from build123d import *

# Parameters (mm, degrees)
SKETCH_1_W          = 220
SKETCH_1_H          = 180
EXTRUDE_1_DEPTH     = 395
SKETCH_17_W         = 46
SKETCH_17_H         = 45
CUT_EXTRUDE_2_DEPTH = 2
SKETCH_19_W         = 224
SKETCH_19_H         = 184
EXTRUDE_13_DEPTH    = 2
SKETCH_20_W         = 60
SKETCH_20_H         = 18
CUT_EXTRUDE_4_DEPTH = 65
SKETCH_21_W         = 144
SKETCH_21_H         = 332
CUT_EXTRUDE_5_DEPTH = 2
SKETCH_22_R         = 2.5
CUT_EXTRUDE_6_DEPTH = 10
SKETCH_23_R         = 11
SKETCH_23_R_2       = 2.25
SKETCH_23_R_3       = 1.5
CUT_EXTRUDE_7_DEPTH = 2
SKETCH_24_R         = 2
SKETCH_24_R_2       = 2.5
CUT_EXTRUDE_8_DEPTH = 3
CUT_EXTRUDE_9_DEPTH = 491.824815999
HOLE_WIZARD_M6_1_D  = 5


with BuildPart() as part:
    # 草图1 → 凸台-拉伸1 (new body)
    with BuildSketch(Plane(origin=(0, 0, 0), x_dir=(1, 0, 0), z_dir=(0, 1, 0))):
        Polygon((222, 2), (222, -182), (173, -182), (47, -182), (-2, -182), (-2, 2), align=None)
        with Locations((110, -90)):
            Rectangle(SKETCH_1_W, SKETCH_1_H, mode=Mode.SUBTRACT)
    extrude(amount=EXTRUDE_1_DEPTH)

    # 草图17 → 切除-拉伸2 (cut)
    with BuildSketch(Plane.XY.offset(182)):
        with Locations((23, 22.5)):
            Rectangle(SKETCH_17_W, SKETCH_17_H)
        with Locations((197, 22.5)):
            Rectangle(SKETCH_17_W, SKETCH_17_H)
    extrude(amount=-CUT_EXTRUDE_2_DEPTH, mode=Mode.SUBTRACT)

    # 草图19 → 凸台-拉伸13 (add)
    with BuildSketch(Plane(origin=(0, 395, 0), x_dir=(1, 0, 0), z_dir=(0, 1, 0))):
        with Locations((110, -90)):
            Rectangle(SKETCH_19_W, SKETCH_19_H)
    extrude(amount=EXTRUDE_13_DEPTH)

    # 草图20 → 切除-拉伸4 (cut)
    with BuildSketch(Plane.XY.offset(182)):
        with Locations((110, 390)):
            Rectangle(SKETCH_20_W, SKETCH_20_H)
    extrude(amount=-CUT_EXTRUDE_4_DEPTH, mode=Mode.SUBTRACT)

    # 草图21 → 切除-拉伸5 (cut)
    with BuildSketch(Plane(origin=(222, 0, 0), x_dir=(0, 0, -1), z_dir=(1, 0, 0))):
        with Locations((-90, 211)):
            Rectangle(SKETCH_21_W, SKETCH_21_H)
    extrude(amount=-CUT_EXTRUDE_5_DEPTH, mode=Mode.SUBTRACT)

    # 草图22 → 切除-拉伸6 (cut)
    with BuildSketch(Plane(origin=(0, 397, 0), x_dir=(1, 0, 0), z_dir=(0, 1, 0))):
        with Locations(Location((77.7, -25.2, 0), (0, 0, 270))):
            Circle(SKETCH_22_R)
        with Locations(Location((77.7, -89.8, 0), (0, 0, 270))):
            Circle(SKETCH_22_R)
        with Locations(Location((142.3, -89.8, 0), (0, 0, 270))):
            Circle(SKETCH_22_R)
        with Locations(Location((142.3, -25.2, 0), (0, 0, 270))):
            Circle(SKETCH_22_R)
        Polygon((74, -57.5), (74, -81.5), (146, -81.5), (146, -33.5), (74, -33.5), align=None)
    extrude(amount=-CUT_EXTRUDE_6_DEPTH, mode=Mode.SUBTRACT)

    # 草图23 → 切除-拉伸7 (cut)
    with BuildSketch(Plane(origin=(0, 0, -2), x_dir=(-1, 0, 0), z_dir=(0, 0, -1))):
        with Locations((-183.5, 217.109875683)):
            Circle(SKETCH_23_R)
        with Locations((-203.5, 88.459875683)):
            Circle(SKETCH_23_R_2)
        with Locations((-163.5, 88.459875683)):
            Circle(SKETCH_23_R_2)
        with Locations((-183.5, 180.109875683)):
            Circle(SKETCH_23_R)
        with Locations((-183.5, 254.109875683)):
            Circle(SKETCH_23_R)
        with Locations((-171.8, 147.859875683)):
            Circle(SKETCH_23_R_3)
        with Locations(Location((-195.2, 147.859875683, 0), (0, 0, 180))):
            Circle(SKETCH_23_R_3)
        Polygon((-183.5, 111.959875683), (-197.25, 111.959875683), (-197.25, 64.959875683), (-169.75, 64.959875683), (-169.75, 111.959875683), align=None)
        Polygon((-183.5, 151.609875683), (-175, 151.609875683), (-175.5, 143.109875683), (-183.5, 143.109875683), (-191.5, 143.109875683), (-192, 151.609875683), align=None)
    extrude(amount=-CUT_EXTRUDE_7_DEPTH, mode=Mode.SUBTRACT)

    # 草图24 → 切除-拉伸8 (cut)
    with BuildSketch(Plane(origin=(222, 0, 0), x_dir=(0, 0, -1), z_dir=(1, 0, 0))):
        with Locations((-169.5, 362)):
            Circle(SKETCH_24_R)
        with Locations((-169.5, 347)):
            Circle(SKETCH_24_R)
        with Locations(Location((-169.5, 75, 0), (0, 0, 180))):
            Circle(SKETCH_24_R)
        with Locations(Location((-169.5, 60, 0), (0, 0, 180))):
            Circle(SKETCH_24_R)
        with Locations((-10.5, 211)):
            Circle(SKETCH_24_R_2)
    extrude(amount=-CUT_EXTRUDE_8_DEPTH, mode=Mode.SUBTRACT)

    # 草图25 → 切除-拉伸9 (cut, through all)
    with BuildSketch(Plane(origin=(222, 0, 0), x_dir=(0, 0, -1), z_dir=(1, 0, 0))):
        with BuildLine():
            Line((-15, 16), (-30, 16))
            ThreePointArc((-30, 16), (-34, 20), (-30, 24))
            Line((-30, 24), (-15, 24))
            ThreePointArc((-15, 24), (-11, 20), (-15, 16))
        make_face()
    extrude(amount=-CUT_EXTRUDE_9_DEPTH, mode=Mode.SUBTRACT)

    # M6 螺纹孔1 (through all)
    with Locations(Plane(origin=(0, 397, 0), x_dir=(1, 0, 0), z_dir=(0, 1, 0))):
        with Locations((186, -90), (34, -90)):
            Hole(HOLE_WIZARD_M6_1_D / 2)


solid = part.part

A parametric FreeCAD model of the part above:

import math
import FreeCAD as App
import Part
import Sketcher
Q = App.Units.Quantity


def add_polygon(sketch, points):
    """Adds a closed chain of lines whose ends are joined by coincident constraints."""
    first, n = sketch.GeometryCount, len(points)
    for a, b in zip(points, points[1:] + points[:1]):
        sketch.addGeometry(Part.LineSegment(App.Vector(*a, 0), App.Vector(*b, 0)), False)
    for i in range(n):
        sketch.addConstraint(Sketcher.Constraint("Coincident", first + i, 2, first + (i + 1) % n, 1))

doc = App.newDocument("Part")
params = doc.addObject("Spreadsheet::Sheet", "Params")
for row, (alias, value) in enumerate([
    ("sketch1_width", "224 mm"),
    ("sketch1_width2", "220 mm"),
    ("sketch1_height", "184 mm"),
    ("sketch1_height2", "180 mm"),
    ("pad1_length", "395 mm"),
    ("sketch2_width", "46 mm"),
    ("sketch2_height", "45 mm"),
    ("pocket1_length", "2 mm"),
    ("sketch3_width", "224 mm"),
    ("sketch3_height", "184 mm"),
    ("pad2_length", "2 mm"),
    ("sketch4_width", "60 mm"),
    ("sketch4_height", "18 mm"),
    ("pocket2_length", "65 mm"),
    ("sketch5_width", "332 mm"),
    ("sketch5_height", "144 mm"),
    ("pocket3_length", "2 mm"),
    ("sketch6_diameter", "5 mm"),
    ("sketch6_width", "72 mm"),
    ("sketch6_height", "48 mm"),
    ("pocket4_length", "10 mm"),
    ("sketch7_diameter", "22 mm"),
    ("sketch7_diameter2", "3 mm"),
    ("sketch7_diameter3", "4.5 mm"),
    ("sketch7_width", "17 mm"),
    ("sketch7_width2", "16 mm"),
    ("pocket5_length", "2 mm"),
    ("sketch8_diameter", "4 mm"),
    ("sketch8_diameter2", "5 mm"),
    ("pocket6_length", "3 mm"),
    ("sketch9_radius", "4 mm"),
    ("sketch9_height", "15 mm"),
    ("sketch10_diameter", "5 mm"),
    ("hole_diameter", "5 mm"),
], start=1):
    params.set(f"A{row}", alias)
    params.set(f"B{row}", "=" + value)
    params.setAlias(f"B{row}", alias)

body = doc.addObject("PartDesign::Body", "Body")

# Sketch on XZ plane
sketch1 = doc.addObject("Sketcher::SketchObject", "Sketch")
body.addObject(sketch1)
sketch1.AttachmentSupport = (doc.XZ_Plane, [""])
sketch1.MapMode = "FlatFace"
add_polygon(sketch1, [(222, 182), (222, -2), (-2, -2), (-2, 182)])  # lines 0-3
add_polygon(sketch1, [(0, 180), (0, 0), (220, 0), (220, 180)])  # lines 4-7
sketch1.addConstraint([
    Sketcher.Constraint("Vertical", 0),
    Sketcher.Constraint("Horizontal", 1),
    Sketcher.Constraint("Vertical", 2),
    Sketcher.Constraint("Horizontal", 3),
    Sketcher.Constraint("Vertical", 4),
    Sketcher.Constraint("Horizontal", 5),
    Sketcher.Constraint("Vertical", 6),
    Sketcher.Constraint("Horizontal", 7),
    Sketcher.Constraint("Coincident", 4, 2, -1, 1),
    Sketcher.Constraint("DistanceX", 1, 2, 1, 1, Q("224 mm")),
    Sketcher.Constraint("DistanceX", 5, 1, 5, 2, Q("220 mm")),
    Sketcher.Constraint("DistanceY", 0, 2, 0, 1, Q("184 mm")),
    Sketcher.Constraint("DistanceY", 4, 2, 4, 1, Q("180 mm")),
    Sketcher.Constraint("DistanceX", -1, 1, 0, 2, Q("222 mm")),
    Sketcher.Constraint("DistanceY", 0, 2, -1, 1, Q("2 mm")),
])
sketch1.setExpression("Constraints[17]", "Params.sketch1_width")
sketch1.setExpression("Constraints[18]", "Params.sketch1_width2")
sketch1.setExpression("Constraints[19]", "Params.sketch1_height")
sketch1.setExpression("Constraints[20]", "Params.sketch1_height2")
pad1 = doc.addObject("PartDesign::Pad", "Pad")
body.addObject(pad1)
pad1.Profile = sketch1
pad1.setExpression("Length", "Params.pad1_length")
pad1.Reversed = True

# Sketch on XY plane
sketch2 = doc.addObject("Sketcher::SketchObject", "Sketch001")
body.addObject(sketch2)
sketch2.AttachmentSupport = (doc.XY_Plane, [""])
sketch2.MapMode = "FlatFace"
sketch2.AttachmentOffset = App.Placement(App.Vector(0, 0, 182), App.Rotation())
add_polygon(sketch2, [(0, 45), (0, 0), (46, 0), (46, 45)])  # lines 0-3
add_polygon(sketch2, [(174, 45), (174, 0), (220, 0), (220, 45)])  # lines 4-7
sketch2.addConstraint([
    Sketcher.Constraint("Vertical", 0),
    Sketcher.Constraint("Horizontal", 1),
    Sketcher.Constraint("Vertical", 2),
    Sketcher.Constraint("Horizontal", 3),
    Sketcher.Constraint("Vertical", 4),
    Sketcher.Constraint("Horizontal", 5),
    Sketcher.Constraint("Vertical", 6),
    Sketcher.Constraint("Horizontal", 7),
    Sketcher.Constraint("Coincident", 0, 2, -1, 1),
    Sketcher.Constraint("PointOnObject", 4, 2, -1),
    Sketcher.Constraint("Horizontal", 3, 2, 6, 2),
    Sketcher.Constraint("Equal", 3, 5),
    Sketcher.Constraint("DistanceX", 1, 1, 1, 2, Q("46 mm")),
    Sketcher.Constraint("DistanceY", 0, 2, 0, 1, Q("45 mm")),
    Sketcher.Constraint("DistanceX", -1, 1, 4, 2, Q("174 mm")),
])
sketch2.setExpression("Constraints[20]", "Params.sketch2_width")
sketch2.setExpression("Constraints[21]", "Params.sketch2_height")
pocket1 = doc.addObject("PartDesign::Pocket", "Pocket")
body.addObject(pocket1)
pocket1.Profile = sketch2
pocket1.setExpression("Length", "Params.pocket1_length")

# Sketch on XZ plane
sketch3 = doc.addObject("Sketcher::SketchObject", "Sketch002")
body.addObject(sketch3)
sketch3.AttachmentSupport = (doc.XZ_Plane, [""])
sketch3.MapMode = "FlatFace"
sketch3.AttachmentOffset = App.Placement(App.Vector(0, 0, -395), App.Rotation())
add_polygon(sketch3, [(-2, -2), (-2, 182), (222, 182), (222, -2)])  # lines 0-3
sketch3.addConstraint([
    Sketcher.Constraint("Vertical", 0),
    Sketcher.Constraint("Horizontal", 1),
    Sketcher.Constraint("Vertical", 2),
    Sketcher.Constraint("Horizontal", 3),
    Sketcher.Constraint("DistanceX", 1, 1, 1, 2, Q("224 mm")),
    Sketcher.Constraint("DistanceY", 0, 1, 0, 2, Q("184 mm")),
    Sketcher.Constraint("DistanceX", 0, 2, -1, 1, Q("2 mm")),
    Sketcher.Constraint("DistanceY", -1, 1, 0, 2, Q("182 mm")),
])
sketch3.setExpression("Constraints[8]", "Params.sketch3_width")
sketch3.setExpression("Constraints[9]", "Params.sketch3_height")
pad2 = doc.addObject("PartDesign::Pad", "Pad001")
body.addObject(pad2)
pad2.Profile = sketch3
pad2.setExpression("Length", "Params.pad2_length")
pad2.Reversed = True

# Sketch on XY plane
sketch4 = doc.addObject("Sketcher::SketchObject", "Sketch003")
body.addObject(sketch4)
sketch4.AttachmentSupport = (doc.XY_Plane, [""])
sketch4.MapMode = "FlatFace"
sketch4.AttachmentOffset = App.Placement(App.Vector(0, 0, 182), App.Rotation())
add_polygon(sketch4, [(80, 399), (80, 381), (140, 381), (140, 399)])  # lines 0-3
sketch4.addConstraint([
    Sketcher.Constraint("Vertical", 0),
    Sketcher.Constraint("Horizontal", 1),
    Sketcher.Constraint("Vertical", 2),
    Sketcher.Constraint("Horizontal", 3),
    Sketcher.Constraint("DistanceX", 1, 1, 1, 2, Q("60 mm")),
    Sketcher.Constraint("DistanceY", 0, 2, 0, 1, Q("18 mm")),
    Sketcher.Constraint("DistanceX", -1, 1, 0, 2, Q("80 mm")),
    Sketcher.Constraint("DistanceY", -1, 1, 0, 2, Q("381 mm")),
])
sketch4.setExpression("Constraints[8]", "Params.sketch4_width")
sketch4.setExpression("Constraints[9]", "Params.sketch4_height")
pocket2 = doc.addObject("PartDesign::Pocket", "Pocket001")
body.addObject(pocket2)
pocket2.Profile = sketch4
pocket2.setExpression("Length", "Params.pocket2_length")

# Sketch on YZ plane
sketch5 = doc.addObject("Sketcher::SketchObject", "Sketch004")
body.addObject(sketch5)
sketch5.AttachmentSupport = (doc.YZ_Plane, [""])
sketch5.MapMode = "FlatFace"
sketch5.AttachmentOffset = App.Placement(App.Vector(0, 0, 222), App.Rotation())
add_polygon(sketch5, [(377, 162), (45, 162), (45, 18), (377, 18)])  # lines 0-3
sketch5.addConstraint([
    Sketcher.Constraint("Horizontal", 0),
    Sketcher.Constraint("Vertical", 1),
    Sketcher.Constraint("Horizontal", 2),
    Sketcher.Constraint("Vertical", 3),
    Sketcher.Constraint("DistanceX", 0, 2, 0, 1, Q("332 mm")),
    Sketcher.Constraint("DistanceY", 1, 2, 1, 1, Q("144 mm")),
    Sketcher.Constraint("DistanceX", -1, 1, 0, 2, Q("45 mm")),
    Sketcher.Constraint("DistanceY", -1, 1, 0, 2, Q("162 mm")),
])
sketch5.setExpression("Constraints[8]", "Params.sketch5_width")
sketch5.setExpression("Constraints[9]", "Params.sketch5_height")
pocket3 = doc.addObject("PartDesign::Pocket", "Pocket002")
body.addObject(pocket3)
pocket3.Profile = sketch5
pocket3.setExpression("Length", "Params.pocket3_length")

# Sketch on XZ plane
sketch6 = doc.addObject("Sketcher::SketchObject", "Sketch005")
body.addObject(sketch6)
sketch6.AttachmentSupport = (doc.XZ_Plane, [""])
sketch6.MapMode = "FlatFace"
sketch6.AttachmentOffset = App.Placement(App.Vector(0, 0, -397), App.Rotation())
sketch6.addGeometry(Part.Circle(App.Vector(77.7, 25.2, 0), App.Vector(0, 0, 1), 2.5), False)  # 0
sketch6.addGeometry(Part.Circle(App.Vector(77.7, 89.8, 0), App.Vector(0, 0, 1), 2.5), False)  # 1
sketch6.addGeometry(Part.Circle(App.Vector(142.3, 89.8, 0), App.Vector(0, 0, 1), 2.5), False)  # 2
sketch6.addGeometry(Part.Circle(App.Vector(142.3, 25.2, 0), App.Vector(0, 0, 1), 2.5), False)  # 3
add_polygon(sketch6, [(74, 81.5), (146, 81.5), (146, 33.5), (74, 33.5)])  # lines 4-7
sketch6.addConstraint([
    Sketcher.Constraint("Horizontal", 4),
    Sketcher.Constraint("Vertical", 5),
    Sketcher.Constraint("Horizontal", 6),
    Sketcher.Constraint("Vertical", 7),
    Sketcher.Constraint("Equal", 0, 1),
    Sketcher.Constraint("Equal", 1, 2),
    Sketcher.Constraint("Equal", 2, 3),
    Sketcher.Constraint("Horizontal", 1, 3, 2, 3),
    Sketcher.Constraint("Horizontal", 0, 3, 3, 3),
    Sketcher.Constraint("Vertical", 0, 3, 1, 3),
    Sketcher.Constraint("Vertical", 2, 3, 3, 3),
    Sketcher.Constraint("Diameter", 0, Q("5 mm")),
    Sketcher.Constraint("DistanceX", 4, 1, 4, 2, Q("72 mm")),
    Sketcher.Constraint("DistanceY", 5, 2, 5, 1, Q("48 mm")),
    Sketcher.Constraint("DistanceX", -1, 1, 4, 2, Q("146 mm")),
    Sketcher.Constraint("DistanceX", -1, 1, 0, 3, Q("77.7 mm")),
    Sketcher.Constraint("DistanceY", -1, 1, 0, 3, Q("25.2 mm")),
    Sketcher.Constraint("DistanceY", -1, 1, 1, 3, Q("89.8 mm")),
    Sketcher.Constraint("DistanceX", -1, 1, 2, 3, Q("142.3 mm")),
    Sketcher.Constraint("DistanceY", -1, 1, 4, 2, Q("81.5 mm")),
])
sketch6.setExpression("Constraints[15]", "Params.sketch6_diameter")
sketch6.setExpression("Constraints[16]", "Params.sketch6_width")
sketch6.setExpression("Constraints[17]", "Params.sketch6_height")
pocket4 = doc.addObject("PartDesign::Pocket", "Pocket003")
body.addObject(pocket4)
pocket4.Profile = sketch6
pocket4.setExpression("Length", "Params.pocket4_length")
pocket4.Reversed = True

# Sketch on XY plane
sketch7 = doc.addObject("Sketcher::SketchObject", "Sketch006")
body.addObject(sketch7)
sketch7.AttachmentSupport = (doc.XY_Plane, [""])
sketch7.MapMode = "FlatFace"
sketch7.AttachmentOffset = App.Placement(App.Vector(0, 0, -2), App.Rotation())
sketch7.addGeometry(Part.Circle(App.Vector(183.5, 217.1, 0), App.Vector(0, 0, 1), 11), False)  # 0
sketch7.addGeometry(Part.Circle(App.Vector(203.5, 88.5, 0), App.Vector(0, 0, 1), 2.2), False)  # 1
sketch7.addGeometry(Part.Circle(App.Vector(163.5, 88.5, 0), App.Vector(0, 0, 1), 2.2), False)  # 2
sketch7.addGeometry(Part.Circle(App.Vector(183.5, 180.1, 0), App.Vector(0, 0, 1), 11), False)  # 3
sketch7.addGeometry(Part.Circle(App.Vector(183.5, 254.1, 0), App.Vector(0, 0, 1), 11), False)  # 4
sketch7.addGeometry(Part.Circle(App.Vector(171.8, 147.9, 0), App.Vector(0, 0, 1), 1.5), False)  # 5
sketch7.addGeometry(Part.Circle(App.Vector(195.2, 147.9, 0), App.Vector(0, 0, 1), 1.5), False)  # 6
add_polygon(sketch7, [(197.2, 112), (197.2, 65), (169.8, 65), (169.8, 112)])  # lines 7-10
add_polygon(sketch7, [(175, 151.6), (192, 151.6), (191.5, 143.1), (175.5, 143.1)])  # lines 11-14
sketch7.addConstraint([
    Sketcher.Constraint("Vertical", 7),
    Sketcher.Constraint("Horizontal", 8),
    Sketcher.Constraint("Vertical", 9),
    Sketcher.Constraint("Horizontal", 10),
    Sketcher.Constraint("Horizontal", 11),
    Sketcher.Constraint("Horizontal", 13),
    Sketcher.Constraint("Equal", 1, 2),
    Sketcher.Constraint("Equal", 0, 3),
    Sketcher.Constraint("Equal", 3, 4),
    Sketcher.Constraint("Equal", 5, 6),
    Sketcher.Constraint("Horizontal", 1, 3, 2, 3),
    Sketcher.Constraint("Horizontal", 5, 3, 6, 3),
    Sketcher.Constraint("Vertical", 0, 3, 3, 3),
    Sketcher.Constraint("Vertical", 3, 3, 4, 3),
    Sketcher.Constraint("Equal", 12, 14),
    Sketcher.Constraint("Diameter", 0, Q("22 mm")),
    Sketcher.Constraint("Diameter", 5, Q("3 mm")),
    Sketcher.Constraint("Diameter", 1, Q("4.5 mm")),
    Sketcher.Constraint("DistanceX", 11, 1, 11, 2, Q("17 mm")),
    Sketcher.Constraint("DistanceX", 13, 2, 13, 1, Q("16 mm")),
    Sketcher.Constraint("DistanceY", 7, 2, 7, 1, Q("47 mm")),
    Sketcher.Constraint("DistanceX", 8, 2, 8, 1, Q("27.5 mm")),
    Sketcher.Constraint("DistanceX", -1, 1, 11, 2, Q("192 mm")),
    Sketcher.Constraint("DistanceX", 0, 3, 1, 3, Q("20 mm")),
    Sketcher.Constraint("DistanceX", 2, 3, 1, 3, Q("40 mm")),
    Sketcher.Constraint("DistanceY", 3, 3, 0, 3, Q("37 mm")),
    Sketcher.Constraint("DistanceY", 0, 3, 4, 3, Q("37 mm")),
    Sketcher.Constraint("DistanceX", 3, 3, 12, 2, Q("8 mm")),
    Sketcher.Constraint("DistanceY", 12, 2, 3, 3, Q("37 mm")),
    Sketcher.Constraint("DistanceX", -1, 1, 5, 3, Q("171.8 mm")),
    Sketcher.Constraint("DistanceX", -1, 1, 6, 3, Q("195.2 mm")),
    Sketcher.Constraint("DistanceY", 2, 3, 5, 3, Q("59.4 mm")),
    Sketcher.Constraint("DistanceY", 7, 2, 1, 3, Q("23.5 mm")),
    Sketcher.Constraint("DistanceY", 11, 2, 3, 3, Q("28.5 mm")),
    Sketcher.Constraint("DistanceX", -1, 1, 7, 2, Q("197.25 mm")),
    Sketcher.Constraint("DistanceY", 1, 3, 0, 3, Q("128.65 mm")),
    Sketcher.Constraint("DistanceY", -1, 1, 0, 3, Q("217.109876 mm")),
])
sketch7.setExpression("Constraints[23]", "Params.sketch7_diameter")
sketch7.setExpression("Constraints[24]", "Params.sketch7_diameter2")
sketch7.setExpression("Constraints[25]", "Params.sketch7_diameter3")
sketch7.setExpression("Constraints[26]", "Params.sketch7_width")
sketch7.setExpression("Constraints[27]", "Params.sketch7_width2")
pocket5 = doc.addObject("PartDesign::Pocket", "Pocket004")
body.addObject(pocket5)
pocket5.Profile = sketch7
pocket5.setExpression("Length", "Params.pocket5_length")
pocket5.Reversed = True

# Sketch on YZ plane
sketch8 = doc.addObject("Sketcher::SketchObject", "Sketch007")
body.addObject(sketch8)
sketch8.AttachmentSupport = (doc.YZ_Plane, [""])
sketch8.MapMode = "FlatFace"
sketch8.AttachmentOffset = App.Placement(App.Vector(0, 0, 222), App.Rotation())
sketch8.addGeometry([
    Part.Circle(App.Vector(362, 169.5, 0), App.Vector(0, 0, 1), 2),  # 0
    Part.Circle(App.Vector(347, 169.5, 0), App.Vector(0, 0, 1), 2),  # 1
    Part.Circle(App.Vector(75, 169.5, 0), App.Vector(0, 0, 1), 2),  # 2
    Part.Circle(App.Vector(60, 169.5, 0), App.Vector(0, 0, 1), 2),  # 3
    Part.Circle(App.Vector(211, 10.5, 0), App.Vector(0, 0, 1), 2.5),  # 4
], False)
sketch8.addConstraint([
    Sketcher.Constraint("Equal", 0, 1),
    Sketcher.Constraint("Equal", 1, 2),
    Sketcher.Constraint("Equal", 2, 3),
    Sketcher.Constraint("Horizontal", 0, 3, 1, 3),
    Sketcher.Constraint("Horizontal", 1, 3, 2, 3),
    Sketcher.Constraint("Horizontal", 2, 3, 3, 3),
    Sketcher.Constraint("Diameter", 0, Q("4 mm")),
    Sketcher.Constraint("Diameter", 4, Q("5 mm")),
    Sketcher.Constraint("DistanceX", -1, 1, 0, 3, Q("362 mm")),
    Sketcher.Constraint("DistanceX", -1, 1, 1, 3, Q("347 mm")),
    Sketcher.Constraint("DistanceX", -1, 1, 2, 3, Q("75 mm")),
    Sketcher.Constraint("DistanceX", -1, 1, 3, 3, Q("60 mm")),
    Sketcher.Constraint("DistanceX", -1, 1, 4, 3, Q("211 mm")),
    Sketcher.Constraint("DistanceY", 4, 3, 1, 3, Q("159 mm")),
    Sketcher.Constraint("DistanceY", -1, 1, 0, 3, Q("169.5 mm")),
])
sketch8.setExpression("Constraints[6]", "Params.sketch8_diameter")
sketch8.setExpression("Constraints[7]", "Params.sketch8_diameter2")
pocket6 = doc.addObject("PartDesign::Pocket", "Pocket005")
body.addObject(pocket6)
pocket6.Profile = sketch8
pocket6.setExpression("Length", "Params.pocket6_length")

# Sketch on YZ plane
sketch9 = doc.addObject("Sketcher::SketchObject", "Sketch008")
body.addObject(sketch9)
sketch9.AttachmentSupport = (doc.YZ_Plane, [""])
sketch9.MapMode = "FlatFace"
sketch9.AttachmentOffset = App.Placement(App.Vector(0, 0, 222), App.Rotation())
sketch9.addGeometry([
    Part.LineSegment(App.Vector(16, 30, 0), App.Vector(16, 15, 0)),
    Part.ArcOfCircle(Part.Circle(App.Vector(20, 15, 0), App.Vector(0, 0, 1), 4), math.radians(180), math.radians(360)),
    Part.LineSegment(App.Vector(24, 15, 0), App.Vector(24, 30, 0)),
    Part.ArcOfCircle(Part.Circle(App.Vector(20, 30, 0), App.Vector(0, 0, 1), 4), math.radians(0), math.radians(180)),
], False)
sketch9.addConstraint([
    Sketcher.Constraint("Tangent", 0, 2, 1, 1),
    Sketcher.Constraint("Tangent", 1, 2, 2, 1),
    Sketcher.Constraint("Tangent", 2, 2, 3, 1),
    Sketcher.Constraint("Tangent", 3, 2, 0, 1),
    Sketcher.Constraint("Vertical", 0),
    Sketcher.Constraint("Vertical", 2),
    Sketcher.Constraint("Radius", 1, Q("4 mm")),
    Sketcher.Constraint("DistanceY", 0, 2, 0, 1, Q("15 mm")),
    Sketcher.Constraint("DistanceX", -1, 1, 1, 3, Q("20 mm")),
    Sketcher.Constraint("DistanceY", -1, 1, 1, 3, Q("15 mm")),
])
sketch9.setExpression("Constraints[6]", "Params.sketch9_radius")
sketch9.setExpression("Constraints[7]", "Params.sketch9_height")
pocket7 = doc.addObject("PartDesign::Pocket", "Pocket006")
body.addObject(pocket7)
pocket7.Profile = sketch9
pocket7.Type = "ThroughAll"

# Sketch on XZ plane
sketch10 = doc.addObject("Sketcher::SketchObject", "Sketch009")
body.addObject(sketch10)
sketch10.AttachmentSupport = (doc.XZ_Plane, [""])
sketch10.MapMode = "FlatFace"
sketch10.AttachmentOffset = App.Placement(App.Vector(0, 0, -397), App.Rotation())
sketch10.addGeometry([
    Part.Circle(App.Vector(186, 90, 0), App.Vector(0, 0, 1), 2.5),
    Part.Circle(App.Vector(34, 90, 0), App.Vector(0, 0, 1), 2.5),
], False)
sketch10.addConstraint([
    Sketcher.Constraint("Equal", 0, 1),
    Sketcher.Constraint("Horizontal", 0, 3, 1, 3),
    Sketcher.Constraint("Diameter", 0, Q("5 mm")),
    Sketcher.Constraint("DistanceX", -1, 1, 0, 3, Q("186 mm")),
    Sketcher.Constraint("DistanceY", -1, 1, 0, 3, Q("90 mm")),
    Sketcher.Constraint("DistanceX", -1, 1, 1, 3, Q("34 mm")),
])
sketch10.setExpression("Constraints[2]", "Params.sketch10_diameter")
doc.recompute()
hole = doc.addObject("PartDesign::Hole", "Hole")
body.addObject(hole)
hole.Profile = sketch10
hole.ThreadType = "None"
hole.setExpression("Diameter", "Params.hole_diameter")
hole.DepthType = "ThroughAll"
hole.Reversed = True

doc.recompute()
